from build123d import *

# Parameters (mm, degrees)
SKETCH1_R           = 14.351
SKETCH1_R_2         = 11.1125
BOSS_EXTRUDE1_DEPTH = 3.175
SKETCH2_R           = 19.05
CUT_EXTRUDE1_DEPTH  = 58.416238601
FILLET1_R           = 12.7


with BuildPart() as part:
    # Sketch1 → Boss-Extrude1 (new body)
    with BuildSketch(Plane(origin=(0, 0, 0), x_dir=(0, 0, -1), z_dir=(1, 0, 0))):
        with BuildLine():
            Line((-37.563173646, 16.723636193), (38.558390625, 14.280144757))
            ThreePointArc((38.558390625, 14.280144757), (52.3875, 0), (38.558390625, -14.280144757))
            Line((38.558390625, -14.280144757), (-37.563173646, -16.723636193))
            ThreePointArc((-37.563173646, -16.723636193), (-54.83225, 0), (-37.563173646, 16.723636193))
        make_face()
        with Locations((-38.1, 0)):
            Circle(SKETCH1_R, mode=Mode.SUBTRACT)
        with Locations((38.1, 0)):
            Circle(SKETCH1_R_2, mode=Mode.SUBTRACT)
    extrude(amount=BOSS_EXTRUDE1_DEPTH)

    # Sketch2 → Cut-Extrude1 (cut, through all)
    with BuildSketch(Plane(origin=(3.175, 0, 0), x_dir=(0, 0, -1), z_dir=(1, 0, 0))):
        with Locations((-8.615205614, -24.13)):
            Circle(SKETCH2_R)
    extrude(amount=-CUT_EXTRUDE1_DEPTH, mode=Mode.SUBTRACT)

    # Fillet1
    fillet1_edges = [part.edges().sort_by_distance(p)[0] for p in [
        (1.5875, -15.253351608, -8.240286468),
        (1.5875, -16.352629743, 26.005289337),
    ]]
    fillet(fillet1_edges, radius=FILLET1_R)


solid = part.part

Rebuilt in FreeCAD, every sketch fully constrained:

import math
import FreeCAD as App
import Part
import Sketcher
from FreeCAD import Vector
Q = App.Units.Quantity


def edges_at(feature, points):
    """Names of the edges that pass closest to the given points."""
    edges = feature.Shape.Edges
    near = lambda p: min(range(len(edges)), key=lambda i: edges[i].distToShape(Part.Vertex(*p))[0])
    return sorted({f"Edge{near(p) + 1}" for p in points})

doc = App.newDocument("Part")
body = doc.addObject("PartDesign::Body", "Body")

sketch1 = body.newObject("Sketcher::SketchObject", "Sketch")
sketch1.AttachmentSupport = (doc.getObject("YZ_Plane"), [""])
sketch1.MapMode = "FlatFace"
sketch1.addGeometry([
    Part.LineSegment(Vector(14, -39, 0), Vector(17, 38, 0)),
    Part.ArcOfCircle(Part.Circle(Vector(0, 38, 0), Vector(0, 0, 1), 17), math.radians(-2), math.radians(182)),
    Part.LineSegment(Vector(-17, 38, 0), Vector(-14, -39, 0)),
    Part.ArcOfCircle(Part.Circle(Vector(0, -38, 0), Vector(0, 0, 1), 14), math.radians(-178), math.radians(-2)),
    Part.Circle(Vector(0, -38, 0), Vector(0, 0, 1), 11),
    Part.Circle(Vector(0, 38, 0), Vector(0, 0, 1), 14),
], False)
sketch1.addConstraint([
    Sketcher.Constraint("Tangent", 0, 2, 1, 1),
    Sketcher.Constraint("Tangent", 1, 2, 2, 1),
    Sketcher.Constraint("Tangent", 2, 2, 3, 1),
    Sketcher.Constraint("Tangent", 3, 2, 0, 1),
    Sketcher.Constraint("Coincident", 4, 3, 3, 3),
    Sketcher.Constraint("Coincident", 5, 3, 1, 3),
    Sketcher.Constraint("Symmetric", 1, 3, 3, 3, -1, 1),
    Sketcher.Constraint("PointOnObject", 1, 3, -2),
    Sketcher.Constraint("Diameter", 5, Q("1.13 in")),
    Sketcher.Constraint("Diameter", 4, Q("0.875 in")),
    Sketcher.Constraint("Radius", 3, Q("0.5625 in")),
    Sketcher.Constraint("DistanceY", 3, 3, 1, 3, Q("3 in")),
    Sketcher.Constraint("Radius", 1, 16.73225),
])
pad1 = body.newObject("PartDesign::Pad", "Pad")
pad1.Profile = sketch1
pad1.Length = Q("0.125 in")

sketch2 = body.newObject("Sketcher::SketchObject", "Sketch001")
sketch2.AttachmentSupport = (doc.getObject("YZ_Plane"), [""])
sketch2.MapMode = "FlatFace"
sketch2.AttachmentOffset = App.Placement(Vector(0, 0, 0.125 * 25.4), App.Rotation())
sketch2.addGeometry(Part.Circle(Vector(-24, 9, 0), Vector(0, 0, 1), 19), False)
sketch2.addConstraint([
    Sketcher.Constraint("Diameter", 0, Q("1.5 in")),
    Sketcher.Constraint("DistanceX", 0, 3, -1, 1, Q("0.95 in")),
    Sketcher.Constraint("DistanceY", -1, 1, 0, 3, 8.615206),
])
pocket1 = body.newObject("PartDesign::Pocket", "Pocket")
pocket1.Profile = sketch2
pocket1.Type = "ThroughAll"
doc.recompute()

fillet = body.newObject("PartDesign::Fillet", "Fillet")
fillet.Base = (pocket1, edges_at(pocket1, [(1.587, -15.253, -8.24), (1.587, -16.353, 26.005)]))
fillet.Radius = Q("0.5 in")

doc.recompute()
